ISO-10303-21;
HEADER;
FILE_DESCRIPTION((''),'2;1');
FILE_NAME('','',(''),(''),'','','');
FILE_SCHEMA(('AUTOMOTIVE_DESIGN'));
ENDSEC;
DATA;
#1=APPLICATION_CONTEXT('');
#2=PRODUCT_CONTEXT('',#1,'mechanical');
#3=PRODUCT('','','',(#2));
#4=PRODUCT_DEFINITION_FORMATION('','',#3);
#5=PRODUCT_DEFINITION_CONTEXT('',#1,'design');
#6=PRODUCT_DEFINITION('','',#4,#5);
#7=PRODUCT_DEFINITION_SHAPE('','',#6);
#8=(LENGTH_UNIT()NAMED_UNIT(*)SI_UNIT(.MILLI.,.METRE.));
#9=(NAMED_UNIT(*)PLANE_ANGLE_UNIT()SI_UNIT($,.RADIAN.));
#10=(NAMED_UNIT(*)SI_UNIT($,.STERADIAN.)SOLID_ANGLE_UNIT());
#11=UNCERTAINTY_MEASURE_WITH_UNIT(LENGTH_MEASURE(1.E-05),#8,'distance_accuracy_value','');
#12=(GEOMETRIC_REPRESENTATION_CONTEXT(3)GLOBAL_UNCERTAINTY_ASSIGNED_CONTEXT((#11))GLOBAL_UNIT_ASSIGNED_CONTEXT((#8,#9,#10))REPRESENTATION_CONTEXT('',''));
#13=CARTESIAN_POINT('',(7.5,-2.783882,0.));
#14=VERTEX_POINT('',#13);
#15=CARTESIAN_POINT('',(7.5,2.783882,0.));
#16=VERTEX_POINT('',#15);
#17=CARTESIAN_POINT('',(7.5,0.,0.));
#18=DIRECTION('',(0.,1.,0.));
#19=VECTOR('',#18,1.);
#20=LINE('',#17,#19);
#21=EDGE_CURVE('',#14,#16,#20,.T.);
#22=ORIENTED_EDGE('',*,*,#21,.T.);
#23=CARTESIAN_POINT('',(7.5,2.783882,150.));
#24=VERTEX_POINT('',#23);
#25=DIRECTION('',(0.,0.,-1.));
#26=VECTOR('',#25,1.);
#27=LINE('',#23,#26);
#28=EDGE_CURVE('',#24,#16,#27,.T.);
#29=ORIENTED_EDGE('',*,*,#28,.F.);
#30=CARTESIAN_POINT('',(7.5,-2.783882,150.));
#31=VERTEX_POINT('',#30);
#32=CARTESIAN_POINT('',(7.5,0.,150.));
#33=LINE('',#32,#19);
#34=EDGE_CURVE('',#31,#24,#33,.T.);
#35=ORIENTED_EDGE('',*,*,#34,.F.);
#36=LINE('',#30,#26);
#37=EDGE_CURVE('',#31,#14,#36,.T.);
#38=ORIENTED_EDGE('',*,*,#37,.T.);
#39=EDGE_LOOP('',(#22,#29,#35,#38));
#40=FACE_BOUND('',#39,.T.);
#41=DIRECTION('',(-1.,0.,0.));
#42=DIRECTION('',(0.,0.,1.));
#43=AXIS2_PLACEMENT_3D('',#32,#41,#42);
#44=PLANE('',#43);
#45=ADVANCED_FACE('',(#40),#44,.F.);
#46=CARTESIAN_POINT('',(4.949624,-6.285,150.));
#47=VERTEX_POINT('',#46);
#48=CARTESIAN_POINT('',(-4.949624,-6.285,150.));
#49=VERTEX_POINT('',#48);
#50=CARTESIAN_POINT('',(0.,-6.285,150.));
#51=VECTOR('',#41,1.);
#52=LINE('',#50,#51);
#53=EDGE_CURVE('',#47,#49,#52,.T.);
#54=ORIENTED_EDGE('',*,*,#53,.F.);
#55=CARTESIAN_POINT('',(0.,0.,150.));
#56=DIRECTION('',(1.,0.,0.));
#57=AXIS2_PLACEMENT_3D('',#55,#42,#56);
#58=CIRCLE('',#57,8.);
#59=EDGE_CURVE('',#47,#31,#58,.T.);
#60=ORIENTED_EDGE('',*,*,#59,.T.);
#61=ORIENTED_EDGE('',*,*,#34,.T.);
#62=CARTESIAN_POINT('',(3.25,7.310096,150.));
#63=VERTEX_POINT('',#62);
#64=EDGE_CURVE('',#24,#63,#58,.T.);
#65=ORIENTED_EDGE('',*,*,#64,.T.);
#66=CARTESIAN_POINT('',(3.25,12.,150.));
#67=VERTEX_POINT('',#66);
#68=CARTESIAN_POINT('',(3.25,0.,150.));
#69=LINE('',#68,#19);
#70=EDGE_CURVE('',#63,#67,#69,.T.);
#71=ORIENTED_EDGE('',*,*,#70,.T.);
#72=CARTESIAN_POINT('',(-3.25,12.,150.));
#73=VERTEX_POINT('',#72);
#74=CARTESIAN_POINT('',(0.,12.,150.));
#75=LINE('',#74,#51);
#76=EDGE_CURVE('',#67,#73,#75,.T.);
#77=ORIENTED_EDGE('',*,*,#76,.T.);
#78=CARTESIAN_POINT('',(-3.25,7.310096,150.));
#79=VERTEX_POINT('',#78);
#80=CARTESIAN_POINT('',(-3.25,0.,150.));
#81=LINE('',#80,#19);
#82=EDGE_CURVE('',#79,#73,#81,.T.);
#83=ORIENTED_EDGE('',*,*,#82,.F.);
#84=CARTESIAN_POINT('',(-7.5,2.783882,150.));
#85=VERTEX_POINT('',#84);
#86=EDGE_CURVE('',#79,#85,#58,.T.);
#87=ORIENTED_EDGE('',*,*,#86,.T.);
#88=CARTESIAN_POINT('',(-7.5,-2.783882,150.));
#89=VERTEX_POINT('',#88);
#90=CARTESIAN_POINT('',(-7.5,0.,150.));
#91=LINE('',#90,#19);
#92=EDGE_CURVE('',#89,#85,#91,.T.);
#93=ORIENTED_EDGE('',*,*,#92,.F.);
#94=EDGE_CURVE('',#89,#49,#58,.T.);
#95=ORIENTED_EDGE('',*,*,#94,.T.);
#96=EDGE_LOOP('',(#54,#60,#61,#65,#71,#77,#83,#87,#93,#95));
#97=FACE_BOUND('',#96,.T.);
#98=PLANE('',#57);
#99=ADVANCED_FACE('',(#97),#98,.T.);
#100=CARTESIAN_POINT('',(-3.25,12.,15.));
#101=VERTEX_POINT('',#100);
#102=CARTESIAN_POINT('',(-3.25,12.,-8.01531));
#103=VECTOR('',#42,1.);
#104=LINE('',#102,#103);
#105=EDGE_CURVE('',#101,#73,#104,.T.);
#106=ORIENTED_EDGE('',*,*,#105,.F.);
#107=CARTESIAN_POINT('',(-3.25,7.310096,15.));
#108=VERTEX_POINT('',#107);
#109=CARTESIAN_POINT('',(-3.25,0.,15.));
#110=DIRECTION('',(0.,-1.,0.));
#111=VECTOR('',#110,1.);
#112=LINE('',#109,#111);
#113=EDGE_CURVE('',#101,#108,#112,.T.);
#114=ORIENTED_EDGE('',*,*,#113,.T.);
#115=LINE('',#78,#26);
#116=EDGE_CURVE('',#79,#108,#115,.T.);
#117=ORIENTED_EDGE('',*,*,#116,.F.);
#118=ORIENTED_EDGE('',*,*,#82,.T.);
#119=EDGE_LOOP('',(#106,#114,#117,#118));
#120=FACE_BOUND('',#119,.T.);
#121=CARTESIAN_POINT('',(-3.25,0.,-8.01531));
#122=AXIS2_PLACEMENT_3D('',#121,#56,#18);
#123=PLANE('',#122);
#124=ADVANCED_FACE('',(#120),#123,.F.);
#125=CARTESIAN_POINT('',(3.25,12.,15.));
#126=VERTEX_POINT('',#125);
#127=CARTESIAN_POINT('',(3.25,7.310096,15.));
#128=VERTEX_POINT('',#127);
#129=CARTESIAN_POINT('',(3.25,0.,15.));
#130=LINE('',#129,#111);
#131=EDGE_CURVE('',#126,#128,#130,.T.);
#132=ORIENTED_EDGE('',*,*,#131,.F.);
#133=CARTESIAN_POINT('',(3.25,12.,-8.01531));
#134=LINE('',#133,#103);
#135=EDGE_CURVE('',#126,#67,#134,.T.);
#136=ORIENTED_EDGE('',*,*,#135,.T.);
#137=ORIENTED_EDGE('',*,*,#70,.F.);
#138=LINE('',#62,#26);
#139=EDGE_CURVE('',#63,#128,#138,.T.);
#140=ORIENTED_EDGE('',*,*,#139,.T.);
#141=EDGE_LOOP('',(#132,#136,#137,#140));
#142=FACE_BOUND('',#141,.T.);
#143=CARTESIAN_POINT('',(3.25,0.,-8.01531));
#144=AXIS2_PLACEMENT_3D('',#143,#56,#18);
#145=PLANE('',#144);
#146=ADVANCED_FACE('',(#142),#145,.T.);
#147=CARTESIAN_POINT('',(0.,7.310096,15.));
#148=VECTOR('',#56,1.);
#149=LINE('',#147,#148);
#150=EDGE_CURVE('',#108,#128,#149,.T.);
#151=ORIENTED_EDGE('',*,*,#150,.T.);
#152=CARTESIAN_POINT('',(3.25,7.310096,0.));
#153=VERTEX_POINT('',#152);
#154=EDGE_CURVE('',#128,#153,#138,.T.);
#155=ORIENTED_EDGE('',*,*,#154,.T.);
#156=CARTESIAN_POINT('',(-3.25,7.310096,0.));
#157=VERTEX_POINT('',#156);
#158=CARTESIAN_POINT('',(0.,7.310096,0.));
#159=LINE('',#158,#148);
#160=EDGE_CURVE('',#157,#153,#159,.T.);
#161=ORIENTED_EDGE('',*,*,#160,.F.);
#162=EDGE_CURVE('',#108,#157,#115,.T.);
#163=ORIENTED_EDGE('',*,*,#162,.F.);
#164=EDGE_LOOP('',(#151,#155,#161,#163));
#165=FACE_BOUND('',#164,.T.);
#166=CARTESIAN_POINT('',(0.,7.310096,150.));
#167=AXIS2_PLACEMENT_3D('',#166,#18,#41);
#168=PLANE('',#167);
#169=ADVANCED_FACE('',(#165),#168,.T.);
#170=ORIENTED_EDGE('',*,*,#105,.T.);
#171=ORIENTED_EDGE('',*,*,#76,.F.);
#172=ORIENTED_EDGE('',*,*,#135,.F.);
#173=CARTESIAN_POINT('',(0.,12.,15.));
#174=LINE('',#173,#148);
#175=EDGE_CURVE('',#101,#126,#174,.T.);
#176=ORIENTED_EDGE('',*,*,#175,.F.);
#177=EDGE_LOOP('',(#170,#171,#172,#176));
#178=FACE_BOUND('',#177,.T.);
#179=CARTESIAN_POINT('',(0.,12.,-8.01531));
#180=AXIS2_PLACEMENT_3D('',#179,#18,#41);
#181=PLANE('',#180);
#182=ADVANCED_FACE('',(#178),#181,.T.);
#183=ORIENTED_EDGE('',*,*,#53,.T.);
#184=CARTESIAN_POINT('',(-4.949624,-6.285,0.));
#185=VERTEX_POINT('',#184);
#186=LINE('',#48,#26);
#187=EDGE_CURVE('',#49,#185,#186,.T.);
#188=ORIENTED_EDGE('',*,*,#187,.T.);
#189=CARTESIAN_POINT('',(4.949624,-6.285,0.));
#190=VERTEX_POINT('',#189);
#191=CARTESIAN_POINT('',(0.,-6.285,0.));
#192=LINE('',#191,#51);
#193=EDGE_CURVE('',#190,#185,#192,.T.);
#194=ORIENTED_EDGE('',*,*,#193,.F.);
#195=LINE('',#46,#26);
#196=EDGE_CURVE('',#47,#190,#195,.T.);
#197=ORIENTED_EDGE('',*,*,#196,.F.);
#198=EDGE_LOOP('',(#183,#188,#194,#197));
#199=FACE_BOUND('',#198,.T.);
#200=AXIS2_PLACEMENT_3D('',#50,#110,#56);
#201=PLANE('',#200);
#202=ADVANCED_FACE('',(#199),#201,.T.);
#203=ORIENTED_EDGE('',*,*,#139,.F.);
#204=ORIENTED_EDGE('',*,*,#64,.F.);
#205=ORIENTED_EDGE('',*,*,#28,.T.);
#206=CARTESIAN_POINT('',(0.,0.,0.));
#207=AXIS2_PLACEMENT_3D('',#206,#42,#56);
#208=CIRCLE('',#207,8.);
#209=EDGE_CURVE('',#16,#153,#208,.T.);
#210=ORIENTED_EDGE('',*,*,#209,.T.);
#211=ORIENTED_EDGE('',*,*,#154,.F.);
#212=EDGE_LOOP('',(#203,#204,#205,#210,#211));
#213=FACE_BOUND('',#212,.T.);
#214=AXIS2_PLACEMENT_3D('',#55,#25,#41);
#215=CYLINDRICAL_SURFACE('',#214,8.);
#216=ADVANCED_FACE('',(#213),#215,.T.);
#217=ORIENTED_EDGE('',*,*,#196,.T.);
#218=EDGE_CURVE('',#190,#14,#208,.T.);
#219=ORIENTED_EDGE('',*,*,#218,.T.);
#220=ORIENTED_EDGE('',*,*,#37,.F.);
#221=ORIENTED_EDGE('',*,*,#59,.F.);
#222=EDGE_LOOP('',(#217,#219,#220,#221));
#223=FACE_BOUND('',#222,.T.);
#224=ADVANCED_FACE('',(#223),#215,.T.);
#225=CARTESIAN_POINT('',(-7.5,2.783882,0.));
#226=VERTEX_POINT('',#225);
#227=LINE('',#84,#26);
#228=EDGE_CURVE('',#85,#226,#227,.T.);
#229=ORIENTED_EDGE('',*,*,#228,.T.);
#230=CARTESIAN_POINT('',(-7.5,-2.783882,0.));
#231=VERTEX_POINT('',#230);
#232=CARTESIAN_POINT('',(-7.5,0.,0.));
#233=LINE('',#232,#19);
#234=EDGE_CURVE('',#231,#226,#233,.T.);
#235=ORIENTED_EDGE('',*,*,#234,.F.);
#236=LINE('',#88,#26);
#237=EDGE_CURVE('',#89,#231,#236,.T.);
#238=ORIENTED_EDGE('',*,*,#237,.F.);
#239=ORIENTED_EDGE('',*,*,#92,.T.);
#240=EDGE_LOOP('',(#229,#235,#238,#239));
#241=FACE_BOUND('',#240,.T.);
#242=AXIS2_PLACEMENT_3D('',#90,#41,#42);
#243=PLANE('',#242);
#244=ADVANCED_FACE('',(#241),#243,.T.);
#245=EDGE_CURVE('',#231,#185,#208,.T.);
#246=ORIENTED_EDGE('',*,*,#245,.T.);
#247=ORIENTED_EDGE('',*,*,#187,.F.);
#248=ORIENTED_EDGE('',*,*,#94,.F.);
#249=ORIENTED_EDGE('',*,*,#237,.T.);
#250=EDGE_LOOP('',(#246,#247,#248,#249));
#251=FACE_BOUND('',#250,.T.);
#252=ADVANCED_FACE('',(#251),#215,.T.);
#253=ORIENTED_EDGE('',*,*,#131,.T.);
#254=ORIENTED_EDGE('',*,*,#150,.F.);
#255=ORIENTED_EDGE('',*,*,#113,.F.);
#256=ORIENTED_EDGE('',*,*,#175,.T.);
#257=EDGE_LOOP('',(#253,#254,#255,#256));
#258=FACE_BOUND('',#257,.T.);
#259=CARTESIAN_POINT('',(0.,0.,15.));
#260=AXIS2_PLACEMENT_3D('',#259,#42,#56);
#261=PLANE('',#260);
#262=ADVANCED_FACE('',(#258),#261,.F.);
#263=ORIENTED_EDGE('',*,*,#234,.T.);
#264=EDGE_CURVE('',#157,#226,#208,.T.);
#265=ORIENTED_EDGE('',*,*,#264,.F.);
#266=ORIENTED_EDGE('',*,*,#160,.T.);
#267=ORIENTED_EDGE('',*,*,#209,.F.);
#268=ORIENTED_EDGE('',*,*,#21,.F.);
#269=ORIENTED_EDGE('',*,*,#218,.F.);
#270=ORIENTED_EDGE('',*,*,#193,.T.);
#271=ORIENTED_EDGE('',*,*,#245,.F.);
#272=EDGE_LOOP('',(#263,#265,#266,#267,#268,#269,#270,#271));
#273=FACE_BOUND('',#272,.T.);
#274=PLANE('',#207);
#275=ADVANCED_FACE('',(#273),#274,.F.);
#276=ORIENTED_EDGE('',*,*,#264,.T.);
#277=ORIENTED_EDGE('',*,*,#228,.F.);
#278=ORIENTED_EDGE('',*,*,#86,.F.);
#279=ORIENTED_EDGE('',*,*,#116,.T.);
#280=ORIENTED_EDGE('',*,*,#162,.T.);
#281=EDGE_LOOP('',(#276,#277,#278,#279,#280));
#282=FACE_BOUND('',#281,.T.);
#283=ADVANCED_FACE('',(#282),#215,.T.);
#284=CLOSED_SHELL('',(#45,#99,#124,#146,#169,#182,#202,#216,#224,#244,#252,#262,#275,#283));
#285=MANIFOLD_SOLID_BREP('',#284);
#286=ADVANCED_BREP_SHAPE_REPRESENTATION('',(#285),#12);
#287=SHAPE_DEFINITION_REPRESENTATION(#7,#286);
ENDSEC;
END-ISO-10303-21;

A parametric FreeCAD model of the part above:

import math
import FreeCAD as App
import Part
import Sketcher
from FreeCAD import Vector
Q = App.Units.Quantity


def add_polygon(sketch, points):
    """Adds a closed chain of lines whose ends are joined by coincident constraints."""
    first, n = sketch.GeometryCount, len(points)
    for a, b in zip(points, points[1:] + points[:1]):
        sketch.addGeometry(Part.LineSegment(App.Vector(*a, 0), App.Vector(*b, 0)), False)
    for i in range(n):
        sketch.addConstraint(Sketcher.Constraint("Coincident", first + i, 2, first + (i + 1) % n, 1))

doc = App.newDocument("Part")
body = doc.addObject("PartDesign::Body", "Body")

sketch1 = body.newObject("Sketcher::SketchObject", "Sketch")
sketch1.AttachmentSupport = (doc.getObject("XY_Plane"), [""])
sketch1.MapMode = "FlatFace"
sketch1.addGeometry([
    Part.LineSegment(Vector(3.2, 7.3, 0), Vector(-3.2, 7.3, 0)),
    Part.ArcOfCircle(Part.Circle(Vector(0, 0, 0), Vector(0, 0, 1), 8), math.radians(114), math.radians(160)),
    Part.LineSegment(Vector(-7.5, 2.8, 0), Vector(-7.5, -2.8, 0)),
    Part.ArcOfCircle(Part.Circle(Vector(0, 0, 0), Vector(0, 0, 1), 8), math.radians(-160), math.radians(-128)),
    Part.LineSegment(Vector(-4.9, -6.3, 0), Vector(4.9, -6.3, 0)),
    Part.ArcOfCircle(Part.Circle(Vector(0, 0, 0), Vector(0, 0, 1), 8), math.radians(-52), math.radians(-20)),
    Part.LineSegment(Vector(7.5, -2.8, 0), Vector(7.5, 2.8, 0)),
    Part.ArcOfCircle(Part.Circle(Vector(0, 0, 0), Vector(0, 0, 1), 8), math.radians(20), math.radians(66)),
], False)
sketch1.addConstraint([
    Sketcher.Constraint("Coincident", 0, 2, 1, 1),
    Sketcher.Constraint("Coincident", 1, 2, 2, 1),
    Sketcher.Constraint("Coincident", 2, 2, 3, 1),
    Sketcher.Constraint("Coincident", 3, 2, 4, 1),
    Sketcher.Constraint("Coincident", 4, 2, 5, 1),
    Sketcher.Constraint("Coincident", 5, 2, 6, 1),
    Sketcher.Constraint("Coincident", 6, 2, 7, 1),
    Sketcher.Constraint("Coincident", 7, 2, 0, 1),
    Sketcher.Constraint("Horizontal", 0),
    Sketcher.Constraint("Vertical", 2),
    Sketcher.Constraint("Horizontal", 4),
    Sketcher.Constraint("Vertical", 6),
    Sketcher.Constraint("Coincident", 1, 3, -1, 1),
    Sketcher.Constraint("Coincident", 3, 3, -1, 1),
    Sketcher.Constraint("Coincident", 5, 3, -1, 1),
    Sketcher.Constraint("Coincident", 7, 3, -1, 1),
    Sketcher.Constraint("Equal", 1, 3),
    Sketcher.Constraint("Equal", 3, 5),
    Sketcher.Constraint("Equal", 5, 7),
    Sketcher.Constraint("Horizontal", 2, 2, 5, 2),
    Sketcher.Constraint("Radius", 1, Q("8 mm")),
    Sketcher.Constraint("DistanceX", 0, 2, 0, 1, Q("6.5 mm")),
    Sketcher.Constraint("DistanceX", 1, 2, -1, 1, Q("7.5 mm")),
    Sketcher.Constraint("DistanceY", 3, 2, -1, 1, Q("6.285 mm")),
])
pad1 = body.newObject("PartDesign::Pad", "Pad")
pad1.Profile = sketch1
pad1.Length = 150

sketch2 = body.newObject("Sketcher::SketchObject", "Sketch001")
sketch2.AttachmentSupport = (doc.getObject("XY_Plane"), [""])
sketch2.MapMode = "FlatFace"
sketch2.AttachmentOffset = App.Placement(Vector(0, 0, 150), App.Rotation())
add_polygon(sketch2, [(-3.2, 12), (-3.2, 7.3), (3.2, 7.3), (3.2, 12)])
sketch2.addConstraint([
    Sketcher.Constraint("Vertical", 0),
    Sketcher.Constraint("Horizontal", 1),
    Sketcher.Constraint("Vertical", 2),
    Sketcher.Constraint("Horizontal", 3),
    Sketcher.Constraint("DistanceX", 1, 1, 1, 2, Q("6.5 mm")),
    Sketcher.Constraint("DistanceY", -1, 1, 2, 2, Q("12 mm")),
    Sketcher.Constraint("DistanceX", 0, 2, -1, 1, Q("3.25 mm")),
    Sketcher.Constraint("DistanceY", 0, 2, 0, 1, Q("4.689904 mm")),
])
pad2 = body.newObject("PartDesign::Pad", "Pad001")
pad2.Profile = sketch2
pad2.Length = 135
pad2.Reversed = True

doc.recompute()
